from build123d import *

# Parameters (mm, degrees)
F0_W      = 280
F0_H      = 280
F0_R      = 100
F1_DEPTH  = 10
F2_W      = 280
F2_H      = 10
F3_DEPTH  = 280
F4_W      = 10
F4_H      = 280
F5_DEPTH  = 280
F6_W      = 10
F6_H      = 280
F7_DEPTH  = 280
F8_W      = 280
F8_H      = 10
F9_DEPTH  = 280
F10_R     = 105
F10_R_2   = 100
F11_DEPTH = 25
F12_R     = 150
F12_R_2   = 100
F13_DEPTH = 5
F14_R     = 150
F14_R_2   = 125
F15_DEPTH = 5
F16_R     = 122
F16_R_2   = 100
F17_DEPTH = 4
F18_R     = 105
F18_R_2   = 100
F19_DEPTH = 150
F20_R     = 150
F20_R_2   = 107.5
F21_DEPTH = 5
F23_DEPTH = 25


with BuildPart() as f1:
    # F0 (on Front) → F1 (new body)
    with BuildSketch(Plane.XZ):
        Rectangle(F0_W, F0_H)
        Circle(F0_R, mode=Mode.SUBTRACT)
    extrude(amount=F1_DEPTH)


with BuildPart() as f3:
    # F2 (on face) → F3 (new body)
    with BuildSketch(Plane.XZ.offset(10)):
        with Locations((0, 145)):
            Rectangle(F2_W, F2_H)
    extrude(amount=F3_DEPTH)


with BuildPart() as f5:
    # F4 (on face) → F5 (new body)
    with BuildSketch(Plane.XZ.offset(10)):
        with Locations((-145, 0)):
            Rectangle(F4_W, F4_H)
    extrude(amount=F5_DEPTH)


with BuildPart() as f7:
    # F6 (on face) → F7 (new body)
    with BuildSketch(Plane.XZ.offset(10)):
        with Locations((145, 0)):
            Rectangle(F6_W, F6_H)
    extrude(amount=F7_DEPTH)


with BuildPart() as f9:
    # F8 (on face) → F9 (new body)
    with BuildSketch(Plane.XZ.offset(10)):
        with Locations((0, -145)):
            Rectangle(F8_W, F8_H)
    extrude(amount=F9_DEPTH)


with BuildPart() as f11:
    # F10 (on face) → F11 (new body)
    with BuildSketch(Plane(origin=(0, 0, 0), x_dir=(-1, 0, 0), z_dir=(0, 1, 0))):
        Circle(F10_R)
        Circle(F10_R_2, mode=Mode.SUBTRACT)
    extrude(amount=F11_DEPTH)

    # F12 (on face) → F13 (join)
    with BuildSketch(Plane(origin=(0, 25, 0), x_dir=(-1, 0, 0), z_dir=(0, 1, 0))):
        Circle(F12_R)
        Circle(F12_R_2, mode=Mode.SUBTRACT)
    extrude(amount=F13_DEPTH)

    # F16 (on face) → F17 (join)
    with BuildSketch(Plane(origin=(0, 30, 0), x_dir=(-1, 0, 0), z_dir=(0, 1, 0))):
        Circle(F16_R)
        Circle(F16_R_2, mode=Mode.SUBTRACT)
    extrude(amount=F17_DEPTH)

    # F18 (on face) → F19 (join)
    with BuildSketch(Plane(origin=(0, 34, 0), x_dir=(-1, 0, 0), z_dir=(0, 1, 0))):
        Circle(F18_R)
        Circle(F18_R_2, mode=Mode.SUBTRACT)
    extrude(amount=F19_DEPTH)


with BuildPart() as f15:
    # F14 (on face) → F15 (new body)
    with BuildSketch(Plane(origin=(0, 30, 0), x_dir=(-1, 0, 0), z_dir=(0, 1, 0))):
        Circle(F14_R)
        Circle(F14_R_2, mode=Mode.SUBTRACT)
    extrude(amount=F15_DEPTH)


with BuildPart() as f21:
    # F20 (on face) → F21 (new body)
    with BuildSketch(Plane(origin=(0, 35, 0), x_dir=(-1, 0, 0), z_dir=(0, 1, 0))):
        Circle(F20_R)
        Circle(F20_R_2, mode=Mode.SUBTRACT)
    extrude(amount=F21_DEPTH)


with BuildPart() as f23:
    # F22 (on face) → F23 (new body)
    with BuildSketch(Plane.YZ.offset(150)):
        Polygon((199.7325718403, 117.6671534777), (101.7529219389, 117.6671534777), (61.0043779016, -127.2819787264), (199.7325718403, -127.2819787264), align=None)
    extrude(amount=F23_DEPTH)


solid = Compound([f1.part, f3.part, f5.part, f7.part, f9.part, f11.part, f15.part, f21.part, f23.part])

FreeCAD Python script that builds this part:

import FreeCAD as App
import Part
import Sketcher

V = App.Vector


def add_polygon(sketch, points):
    """Adds a closed chain of lines whose ends are joined by coincident constraints."""
    first, n = sketch.GeometryCount, len(points)
    for a, b in zip(points, points[1:] + points[:1]):
        sketch.addGeometry(Part.LineSegment(App.Vector(*a, 0), App.Vector(*b, 0)), False)
    for i in range(n):
        sketch.addConstraint(Sketcher.Constraint("Coincident", first + i, 2, first + (i + 1) % n, 1))

doc = App.newDocument("Part")
body = doc.addObject("PartDesign::Body", "Body")

# Sketch on XZ plane
sketch1 = body.newObject("Sketcher::SketchObject", "Sketch")
sketch1.AttachmentSupport = (doc.getObject("XZ_Plane"), [""])
sketch1.MapMode = "FlatFace"
add_polygon(sketch1, [(-140, 140), (-140, -140), (140, -140), (140, 140)])  # lines 0-3
sketch1.addGeometry(Part.Circle(V(0, 0, 0), V(0, 0, 1), 100), False)  # 4
sketch1.addConstraint([
    Sketcher.Constraint("Vertical", 0),
    Sketcher.Constraint("Horizontal", 1),
    Sketcher.Constraint("Vertical", 2),
    Sketcher.Constraint("Horizontal", 3),
    Sketcher.Constraint("Coincident", 4, 3, -1, 1),
    Sketcher.Constraint("Symmetric", 0, 2, 2, 2, -1, 1),
    Sketcher.Constraint("Equal", 3, 0),
    Sketcher.Constraint("Diameter", 4, 200.0),
    Sketcher.Constraint("DistanceX", 1, 1, 1, 2, 280.0),
])
pad1 = body.newObject("PartDesign::Pad", "Pad")
pad1.Profile = sketch1
pad1.Length = 10
body2 = doc.addObject("PartDesign::Body", "Body001")

# Sketch on XZ plane
sketch2 = body2.newObject("Sketcher::SketchObject", "Sketch001")
sketch2.AttachmentSupport = (doc.getObject("XZ_Plane001"), [""])
sketch2.MapMode = "FlatFace"
sketch2.AttachmentOffset = App.Placement(V(0, 0, 10), App.Rotation())
add_polygon(sketch2, [(-140, 150), (-140, 140), (140, 140), (140, 150)])  # lines 0-3
sketch2.addConstraint([
    Sketcher.Constraint("Vertical", 0),
    Sketcher.Constraint("Horizontal", 1),
    Sketcher.Constraint("Vertical", 2),
    Sketcher.Constraint("Horizontal", 3),
    Sketcher.Constraint("DistanceX", 1, 1, 1, 2, 280.0),
    Sketcher.Constraint("DistanceY", 0, 2, 0, 1, 10.0),
    Sketcher.Constraint("DistanceX", 0, 2, -1, 1, 140.0),
    Sketcher.Constraint("DistanceY", -1, 1, 0, 2, 140.0),
])
pad2 = body2.newObject("PartDesign::Pad", "Pad001")
pad2.Profile = sketch2
pad2.Length = 280
body3 = doc.addObject("PartDesign::Body", "Body002")

# Sketch on XZ plane
sketch3 = body3.newObject("Sketcher::SketchObject", "Sketch002")
sketch3.AttachmentSupport = (doc.getObject("XZ_Plane002"), [""])
sketch3.MapMode = "FlatFace"
sketch3.AttachmentOffset = App.Placement(V(0, 0, 10), App.Rotation())
add_polygon(sketch3, [(-150, 140), (-150, -140), (-140, -140), (-140, 140)])  # lines 0-3
sketch3.addConstraint([
    Sketcher.Constraint("Vertical", 0),
    Sketcher.Constraint("Horizontal", 1),
    Sketcher.Constraint("Vertical", 2),
    Sketcher.Constraint("Horizontal", 3),
    Sketcher.Constraint("DistanceX", 1, 1, 1, 2, 10.0),
    Sketcher.Constraint("DistanceY", 0, 2, 0, 1, 280.0),
    Sketcher.Constraint("DistanceX", 0, 2, -1, 1, 150.0),
    Sketcher.Constraint("DistanceY", 0, 2, -1, 1, 140.0),
])
pad3 = body3.newObject("PartDesign::Pad", "Pad002")
pad3.Profile = sketch3
pad3.Length = 280
body4 = doc.addObject("PartDesign::Body", "Body003")

# Sketch on XZ plane
sketch4 = body4.newObject("Sketcher::SketchObject", "Sketch003")
sketch4.AttachmentSupport = (doc.getObject("XZ_Plane003"), [""])
sketch4.MapMode = "FlatFace"
sketch4.AttachmentOffset = App.Placement(V(0, 0, 10), App.Rotation())
add_polygon(sketch4, [(140, 140), (140, -140), (150, -140), (150, 140)])  # lines 0-3
sketch4.addConstraint([
    Sketcher.Constraint("Vertical", 0),
    Sketcher.Constraint("Horizontal", 1),
    Sketcher.Constraint("Vertical", 2),
    Sketcher.Constraint("Horizontal", 3),
    Sketcher.Constraint("DistanceX", 1, 1, 1, 2, 10.0),
    Sketcher.Constraint("DistanceY", 0, 2, 0, 1, 280.0),
    Sketcher.Constraint("DistanceX", -1, 1, 0, 2, 140.0),
    Sketcher.Constraint("DistanceY", 0, 2, -1, 1, 140.0),
])
pad4 = body4.newObject("PartDesign::Pad", "Pad003")
pad4.Profile = sketch4
pad4.Length = 280
body5 = doc.addObject("PartDesign::Body", "Body004")

# Sketch on XZ plane
sketch5 = body5.newObject("Sketcher::SketchObject", "Sketch004")
sketch5.AttachmentSupport = (doc.getObject("XZ_Plane004"), [""])
sketch5.MapMode = "FlatFace"
sketch5.AttachmentOffset = App.Placement(V(0, 0, 10), App.Rotation())
add_polygon(sketch5, [(-140, -140), (-140, -150), (140, -150), (140, -140)])  # lines 0-3
sketch5.addConstraint([
    Sketcher.Constraint("Vertical", 0),
    Sketcher.Constraint("Horizontal", 1),
    Sketcher.Constraint("Vertical", 2),
    Sketcher.Constraint("Horizontal", 3),
    Sketcher.Constraint("DistanceX", 1, 1, 1, 2, 280.0),
    Sketcher.Constraint("DistanceY", 0, 2, 0, 1, 10.0),
    Sketcher.Constraint("DistanceX", 0, 2, -1, 1, 140.0),
    Sketcher.Constraint("DistanceY", 0, 2, -1, 1, 150.0),
])
pad5 = body5.newObject("PartDesign::Pad", "Pad004")
pad5.Profile = sketch5
pad5.Length = 280
body6 = doc.addObject("PartDesign::Body", "Body005")

# Sketch on XZ plane
sketch6 = body6.newObject("Sketcher::SketchObject", "Sketch005")
sketch6.AttachmentSupport = (doc.getObject("XZ_Plane005"), [""])
sketch6.MapMode = "FlatFace"
sketch6.addGeometry([
    Part.Circle(V(0, 0, 0), V(0, 0, 1), 105),
    Part.Circle(V(0, 0, 0), V(0, 0, 1), 100),
], False)
sketch6.addConstraint([
    Sketcher.Constraint("Coincident", 0, 3, -1, 1),
    Sketcher.Constraint("Coincident", 1, 3, -1, 1),
    Sketcher.Constraint("Diameter", 0, 210.0),
    Sketcher.Constraint("Diameter", 1, 200.0),
])
pad6 = body6.newObject("PartDesign::Pad", "Pad005")
pad6.Profile = sketch6
pad6.Length = 25
pad6.Reversed = True

# Sketch on XZ plane
sketch7 = body6.newObject("Sketcher::SketchObject", "Sketch006")
sketch7.AttachmentSupport = (doc.getObject("XZ_Plane005"), [""])
sketch7.MapMode = "FlatFace"
sketch7.AttachmentOffset = App.Placement(V(0, 0, -25), App.Rotation())
sketch7.addGeometry([
    Part.Circle(V(0, 0, 0), V(0, 0, 1), 150),
    Part.Circle(V(0, 0, 0), V(0, 0, 1), 100),
], False)
sketch7.addConstraint([
    Sketcher.Constraint("Coincident", 0, 3, -1, 1),
    Sketcher.Constraint("Coincident", 1, 3, -1, 1),
    Sketcher.Constraint("Diameter", 0, 300.0),
    Sketcher.Constraint("Diameter", 1, 200.0),
])
pad7 = body6.newObject("PartDesign::Pad", "Pad006")
pad7.Profile = sketch7
pad7.Length = 5
pad7.Reversed = True

# Sketch on XZ plane
sketch8 = body6.newObject("Sketcher::SketchObject", "Sketch007")
sketch8.AttachmentSupport = (doc.getObject("XZ_Plane005"), [""])
sketch8.MapMode = "FlatFace"
sketch8.AttachmentOffset = App.Placement(V(0, 0, -30), App.Rotation())
sketch8.addGeometry([
    Part.Circle(V(0, 0, 0), V(0, 0, 1), 122),
    Part.Circle(V(0, 0, 0), V(0, 0, 1), 100),
], False)
sketch8.addConstraint([
    Sketcher.Constraint("Coincident", 0, 3, -1, 1),
    Sketcher.Constraint("Coincident", 1, 3, -1, 1),
    Sketcher.Constraint("Diameter", 0, 244.0),
    Sketcher.Constraint("Diameter", 1, 200.0),
])
pad8 = body6.newObject("PartDesign::Pad", "Pad007")
pad8.Profile = sketch8
pad8.Length = 4
pad8.Reversed = True

# Sketch on XZ plane
sketch9 = body6.newObject("Sketcher::SketchObject", "Sketch008")
sketch9.AttachmentSupport = (doc.getObject("XZ_Plane005"), [""])
sketch9.MapMode = "FlatFace"
sketch9.AttachmentOffset = App.Placement(V(0, 0, -34), App.Rotation())
sketch9.addGeometry([
    Part.Circle(V(0, 0, 0), V(0, 0, 1), 105),
    Part.Circle(V(0, 0, 0), V(0, 0, 1), 100),
], False)
sketch9.addConstraint([
    Sketcher.Constraint("Coincident", 0, 3, -1, 1),
    Sketcher.Constraint("Coincident", 1, 3, -1, 1),
    Sketcher.Constraint("Diameter", 0, 210.0),
    Sketcher.Constraint("Diameter", 1, 200.0),
])
pad9 = body6.newObject("PartDesign::Pad", "Pad008")
pad9.Profile = sketch9
pad9.Length = 150
pad9.Reversed = True
body7 = doc.addObject("PartDesign::Body", "Body006")

# Sketch on XZ plane
sketch10 = body7.newObject("Sketcher::SketchObject", "Sketch009")
sketch10.AttachmentSupport = (doc.getObject("XZ_Plane006"), [""])
sketch10.MapMode = "FlatFace"
sketch10.AttachmentOffset = App.Placement(V(0, 0, -30), App.Rotation())
sketch10.addGeometry([
    Part.Circle(V(0, 0, 0), V(0, 0, 1), 150),
    Part.Circle(V(0, 0, 0), V(0, 0, 1), 125),
], False)
sketch10.addConstraint([
    Sketcher.Constraint("Coincident", 0, 3, -1, 1),
    Sketcher.Constraint("Coincident", 1, 3, -1, 1),
    Sketcher.Constraint("Diameter", 0, 300.0),
    Sketcher.Constraint("Diameter", 1, 250.0),
])
pad10 = body7.newObject("PartDesign::Pad", "Pad009")
pad10.Profile = sketch10
pad10.Length = 5
pad10.Reversed = True
body8 = doc.addObject("PartDesign::Body", "Body007")

# Sketch on XZ plane
sketch11 = body8.newObject("Sketcher::SketchObject", "Sketch010")
sketch11.AttachmentSupport = (doc.getObject("XZ_Plane007"), [""])
sketch11.MapMode = "FlatFace"
sketch11.AttachmentOffset = App.Placement(V(0, 0, -35), App.Rotation())
sketch11.addGeometry([
    Part.Circle(V(0, 0, 0), V(0, 0, 1), 150),
    Part.Circle(V(0, 0, 0), V(0, 0, 1), 108),
], False)
sketch11.addConstraint([
    Sketcher.Constraint("Coincident", 0, 3, -1, 1),
    Sketcher.Constraint("Coincident", 1, 3, -1, 1),
    Sketcher.Constraint("Diameter", 0, 300.0),
    Sketcher.Constraint("Diameter", 1, 215.0),
])
pad11 = body8.newObject("PartDesign::Pad", "Pad010")
pad11.Profile = sketch11
pad11.Length = 5
pad11.Reversed = True
body9 = doc.addObject("PartDesign::Body", "Body008")

# Sketch on YZ plane
sketch12 = body9.newObject("Sketcher::SketchObject", "Sketch011")
sketch12.AttachmentSupport = (doc.getObject("YZ_Plane008"), [""])
sketch12.MapMode = "FlatFace"
sketch12.AttachmentOffset = App.Placement(V(0, 0, 150), App.Rotation())
add_polygon(sketch12, [(200, 118), (102, 118), (61, -127), (200, -127)])  # lines 0-3
sketch12.addConstraint([
    Sketcher.Constraint("Horizontal", 0),
    Sketcher.Constraint("Horizontal", 2),
    Sketcher.Constraint("Vertical", 3),
    Sketcher.Constraint("DistanceX", 0, 2, 0, 1, 97.97965),
    Sketcher.Constraint("DistanceX", 2, 1, 2, 2, 138.728194),
    Sketcher.Constraint("DistanceY", 3, 1, 3, 2, 244.949132),
    Sketcher.Constraint("DistanceX", -1, 1, 0, 2, 101.752922),
    Sketcher.Constraint("DistanceY", 1, 2, -1, 1, 127.281979),
])
pad12 = body9.newObject("PartDesign::Pad", "Pad011")
pad12.Profile = sketch12
pad12.Length = 25

doc.recompute()
